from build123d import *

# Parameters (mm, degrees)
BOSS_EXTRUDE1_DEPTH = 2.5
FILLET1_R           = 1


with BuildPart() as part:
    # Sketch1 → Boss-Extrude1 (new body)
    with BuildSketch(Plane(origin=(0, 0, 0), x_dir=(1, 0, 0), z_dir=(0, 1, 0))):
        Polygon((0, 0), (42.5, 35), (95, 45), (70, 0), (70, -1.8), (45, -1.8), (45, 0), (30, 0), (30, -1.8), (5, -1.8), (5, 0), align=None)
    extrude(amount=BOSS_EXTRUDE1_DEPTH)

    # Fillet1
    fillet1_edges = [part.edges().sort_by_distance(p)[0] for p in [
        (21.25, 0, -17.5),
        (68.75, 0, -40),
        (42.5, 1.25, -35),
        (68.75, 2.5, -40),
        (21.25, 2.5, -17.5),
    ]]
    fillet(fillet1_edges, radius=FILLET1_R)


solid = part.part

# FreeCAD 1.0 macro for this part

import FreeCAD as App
import Part
import Sketcher
from FreeCAD import Vector
Q = App.Units.Quantity


def edges_at(feature, points):
    """Names of the edges that pass closest to the given points."""
    edges = feature.Shape.Edges
    near = lambda p: min(range(len(edges)), key=lambda i: edges[i].distToShape(Part.Vertex(*p))[0])
    return sorted({f"Edge{near(p) + 1}" for p in points})

doc = App.newDocument("Part")
params = doc.addObject("Spreadsheet::Sheet", "Params")
for row, (alias, value) in enumerate([
    ("sketch1_width", "5 mm"),
    ("sketch1_width2", "25 mm"),
    ("sketch1_width3", "15 mm"),
    ("sketch1_height", "1.8 mm"),
    ("pad1_length", "2.5 mm"),
    ("fillet_radius", "1 mm"),
], start=1):
    params.set(f"A{row}", alias)
    params.set(f"B{row}", "=" + value)
    params.setAlias(f"B{row}", alias)

body = doc.addObject("PartDesign::Body", "Body")

# Sketch on XZ plane
sketch1 = doc.addObject("Sketcher::SketchObject", "Sketch")
body.addObject(sketch1)
sketch1.AttachmentSupport = (doc.XZ_Plane, [""])
sketch1.MapMode = "FlatFace"
sketch1.addGeometry([
    Part.LineSegment(Vector(42.5, -35, 0), Vector(0, 0, 0)),  # 0
    Part.LineSegment(Vector(0, 0, 0), Vector(5, 0, 0)),  # 1
    Part.LineSegment(Vector(5, 0, 0), Vector(5, 1.8, 0)),  # 2
    Part.LineSegment(Vector(5, 1.8, 0), Vector(30, 1.8, 0)),  # 3
    Part.LineSegment(Vector(30, 1.8, 0), Vector(30, 0, 0)),  # 4
    Part.LineSegment(Vector(30, 0, 0), Vector(45, 0, 0)),  # 5
    Part.LineSegment(Vector(45, 0, 0), Vector(45, 1.8, 0)),  # 6
    Part.LineSegment(Vector(45, 1.8, 0), Vector(70, 1.8, 0)),  # 7
    Part.LineSegment(Vector(70, 1.8, 0), Vector(70, 0, 0)),  # 8
    Part.LineSegment(Vector(70, 0, 0), Vector(95, -45, 0)),  # 9
    Part.LineSegment(Vector(95, -45, 0), Vector(42.5, -35, 0)),  # 10
], False)
sketch1.addConstraint([
    Sketcher.Constraint("Coincident", 0, 2, 1, 1),
    Sketcher.Constraint("Coincident", 1, 2, 2, 1),
    Sketcher.Constraint("Coincident", 2, 2, 3, 1),
    Sketcher.Constraint("Coincident", 3, 2, 4, 1),
    Sketcher.Constraint("Coincident", 4, 2, 5, 1),
    Sketcher.Constraint("Coincident", 5, 2, 6, 1),
    Sketcher.Constraint("Coincident", 6, 2, 7, 1),
    Sketcher.Constraint("Coincident", 7, 2, 8, 1),
    Sketcher.Constraint("Coincident", 8, 2, 9, 1),
    Sketcher.Constraint("Coincident", 9, 2, 10, 1),
    Sketcher.Constraint("Coincident", 10, 2, 0, 1),
    Sketcher.Constraint("Horizontal", 1),
    Sketcher.Constraint("Vertical", 2),
    Sketcher.Constraint("Horizontal", 3),
    Sketcher.Constraint("Vertical", 4),
    Sketcher.Constraint("Horizontal", 5),
    Sketcher.Constraint("Vertical", 6),
    Sketcher.Constraint("Horizontal", 7),
    Sketcher.Constraint("Vertical", 8),
    Sketcher.Constraint("Coincident", 0, 2, -1, 1),
    Sketcher.Constraint("PointOnObject", 4, 2, -1),
    Sketcher.Constraint("PointOnObject", 8, 2, -1),
    Sketcher.Constraint("Horizontal", 3, 2, 6, 2),
    Sketcher.Constraint("Equal", 3, 7),
    Sketcher.Constraint("DistanceX", 1, 1, 1, 2, Q("5 mm")),
    Sketcher.Constraint("DistanceX", 3, 1, 3, 2, Q("25 mm")),
    Sketcher.Constraint("DistanceX", 5, 1, 5, 2, Q("15 mm")),
    Sketcher.Constraint("DistanceY", 2, 1, 2, 2, Q("1.8 mm")),
    Sketcher.Constraint("DistanceX", -1, 1, 9, 2, Q("95 mm")),
    Sketcher.Constraint("DistanceY", 9, 2, -1, 1, Q("45 mm")),
    Sketcher.Constraint("DistanceY", 10, 2, -1, 1, Q("35 mm")),
    Sketcher.Constraint("DistanceX", -1, 1, 10, 2, Q("42.5 mm")),
])
sketch1.setExpression("Constraints[24]", "Params.sketch1_width")
sketch1.setExpression("Constraints[25]", "Params.sketch1_width2")
sketch1.setExpression("Constraints[26]", "Params.sketch1_width3")
sketch1.setExpression("Constraints[27]", "Params.sketch1_height")
pad1 = doc.addObject("PartDesign::Pad", "Pad")
body.addObject(pad1)
pad1.Profile = sketch1
pad1.setExpression("Length", "Params.pad1_length")
pad1.Reversed = True
doc.recompute()

fillet = doc.addObject("PartDesign::Fillet", "Fillet")
body.addObject(fillet)
fillet.Base = (pad1, edges_at(pad1, [
    (21.25, 0, -17.5),
    (68.75, 0, -40),
    (42.5, 1.25, -35),
    (68.75, 2.5, -40),
    (21.25, 2.5, -17.5),
]))
fillet.setExpression("Radius", "Params.fillet_radius")

doc.recompute()
